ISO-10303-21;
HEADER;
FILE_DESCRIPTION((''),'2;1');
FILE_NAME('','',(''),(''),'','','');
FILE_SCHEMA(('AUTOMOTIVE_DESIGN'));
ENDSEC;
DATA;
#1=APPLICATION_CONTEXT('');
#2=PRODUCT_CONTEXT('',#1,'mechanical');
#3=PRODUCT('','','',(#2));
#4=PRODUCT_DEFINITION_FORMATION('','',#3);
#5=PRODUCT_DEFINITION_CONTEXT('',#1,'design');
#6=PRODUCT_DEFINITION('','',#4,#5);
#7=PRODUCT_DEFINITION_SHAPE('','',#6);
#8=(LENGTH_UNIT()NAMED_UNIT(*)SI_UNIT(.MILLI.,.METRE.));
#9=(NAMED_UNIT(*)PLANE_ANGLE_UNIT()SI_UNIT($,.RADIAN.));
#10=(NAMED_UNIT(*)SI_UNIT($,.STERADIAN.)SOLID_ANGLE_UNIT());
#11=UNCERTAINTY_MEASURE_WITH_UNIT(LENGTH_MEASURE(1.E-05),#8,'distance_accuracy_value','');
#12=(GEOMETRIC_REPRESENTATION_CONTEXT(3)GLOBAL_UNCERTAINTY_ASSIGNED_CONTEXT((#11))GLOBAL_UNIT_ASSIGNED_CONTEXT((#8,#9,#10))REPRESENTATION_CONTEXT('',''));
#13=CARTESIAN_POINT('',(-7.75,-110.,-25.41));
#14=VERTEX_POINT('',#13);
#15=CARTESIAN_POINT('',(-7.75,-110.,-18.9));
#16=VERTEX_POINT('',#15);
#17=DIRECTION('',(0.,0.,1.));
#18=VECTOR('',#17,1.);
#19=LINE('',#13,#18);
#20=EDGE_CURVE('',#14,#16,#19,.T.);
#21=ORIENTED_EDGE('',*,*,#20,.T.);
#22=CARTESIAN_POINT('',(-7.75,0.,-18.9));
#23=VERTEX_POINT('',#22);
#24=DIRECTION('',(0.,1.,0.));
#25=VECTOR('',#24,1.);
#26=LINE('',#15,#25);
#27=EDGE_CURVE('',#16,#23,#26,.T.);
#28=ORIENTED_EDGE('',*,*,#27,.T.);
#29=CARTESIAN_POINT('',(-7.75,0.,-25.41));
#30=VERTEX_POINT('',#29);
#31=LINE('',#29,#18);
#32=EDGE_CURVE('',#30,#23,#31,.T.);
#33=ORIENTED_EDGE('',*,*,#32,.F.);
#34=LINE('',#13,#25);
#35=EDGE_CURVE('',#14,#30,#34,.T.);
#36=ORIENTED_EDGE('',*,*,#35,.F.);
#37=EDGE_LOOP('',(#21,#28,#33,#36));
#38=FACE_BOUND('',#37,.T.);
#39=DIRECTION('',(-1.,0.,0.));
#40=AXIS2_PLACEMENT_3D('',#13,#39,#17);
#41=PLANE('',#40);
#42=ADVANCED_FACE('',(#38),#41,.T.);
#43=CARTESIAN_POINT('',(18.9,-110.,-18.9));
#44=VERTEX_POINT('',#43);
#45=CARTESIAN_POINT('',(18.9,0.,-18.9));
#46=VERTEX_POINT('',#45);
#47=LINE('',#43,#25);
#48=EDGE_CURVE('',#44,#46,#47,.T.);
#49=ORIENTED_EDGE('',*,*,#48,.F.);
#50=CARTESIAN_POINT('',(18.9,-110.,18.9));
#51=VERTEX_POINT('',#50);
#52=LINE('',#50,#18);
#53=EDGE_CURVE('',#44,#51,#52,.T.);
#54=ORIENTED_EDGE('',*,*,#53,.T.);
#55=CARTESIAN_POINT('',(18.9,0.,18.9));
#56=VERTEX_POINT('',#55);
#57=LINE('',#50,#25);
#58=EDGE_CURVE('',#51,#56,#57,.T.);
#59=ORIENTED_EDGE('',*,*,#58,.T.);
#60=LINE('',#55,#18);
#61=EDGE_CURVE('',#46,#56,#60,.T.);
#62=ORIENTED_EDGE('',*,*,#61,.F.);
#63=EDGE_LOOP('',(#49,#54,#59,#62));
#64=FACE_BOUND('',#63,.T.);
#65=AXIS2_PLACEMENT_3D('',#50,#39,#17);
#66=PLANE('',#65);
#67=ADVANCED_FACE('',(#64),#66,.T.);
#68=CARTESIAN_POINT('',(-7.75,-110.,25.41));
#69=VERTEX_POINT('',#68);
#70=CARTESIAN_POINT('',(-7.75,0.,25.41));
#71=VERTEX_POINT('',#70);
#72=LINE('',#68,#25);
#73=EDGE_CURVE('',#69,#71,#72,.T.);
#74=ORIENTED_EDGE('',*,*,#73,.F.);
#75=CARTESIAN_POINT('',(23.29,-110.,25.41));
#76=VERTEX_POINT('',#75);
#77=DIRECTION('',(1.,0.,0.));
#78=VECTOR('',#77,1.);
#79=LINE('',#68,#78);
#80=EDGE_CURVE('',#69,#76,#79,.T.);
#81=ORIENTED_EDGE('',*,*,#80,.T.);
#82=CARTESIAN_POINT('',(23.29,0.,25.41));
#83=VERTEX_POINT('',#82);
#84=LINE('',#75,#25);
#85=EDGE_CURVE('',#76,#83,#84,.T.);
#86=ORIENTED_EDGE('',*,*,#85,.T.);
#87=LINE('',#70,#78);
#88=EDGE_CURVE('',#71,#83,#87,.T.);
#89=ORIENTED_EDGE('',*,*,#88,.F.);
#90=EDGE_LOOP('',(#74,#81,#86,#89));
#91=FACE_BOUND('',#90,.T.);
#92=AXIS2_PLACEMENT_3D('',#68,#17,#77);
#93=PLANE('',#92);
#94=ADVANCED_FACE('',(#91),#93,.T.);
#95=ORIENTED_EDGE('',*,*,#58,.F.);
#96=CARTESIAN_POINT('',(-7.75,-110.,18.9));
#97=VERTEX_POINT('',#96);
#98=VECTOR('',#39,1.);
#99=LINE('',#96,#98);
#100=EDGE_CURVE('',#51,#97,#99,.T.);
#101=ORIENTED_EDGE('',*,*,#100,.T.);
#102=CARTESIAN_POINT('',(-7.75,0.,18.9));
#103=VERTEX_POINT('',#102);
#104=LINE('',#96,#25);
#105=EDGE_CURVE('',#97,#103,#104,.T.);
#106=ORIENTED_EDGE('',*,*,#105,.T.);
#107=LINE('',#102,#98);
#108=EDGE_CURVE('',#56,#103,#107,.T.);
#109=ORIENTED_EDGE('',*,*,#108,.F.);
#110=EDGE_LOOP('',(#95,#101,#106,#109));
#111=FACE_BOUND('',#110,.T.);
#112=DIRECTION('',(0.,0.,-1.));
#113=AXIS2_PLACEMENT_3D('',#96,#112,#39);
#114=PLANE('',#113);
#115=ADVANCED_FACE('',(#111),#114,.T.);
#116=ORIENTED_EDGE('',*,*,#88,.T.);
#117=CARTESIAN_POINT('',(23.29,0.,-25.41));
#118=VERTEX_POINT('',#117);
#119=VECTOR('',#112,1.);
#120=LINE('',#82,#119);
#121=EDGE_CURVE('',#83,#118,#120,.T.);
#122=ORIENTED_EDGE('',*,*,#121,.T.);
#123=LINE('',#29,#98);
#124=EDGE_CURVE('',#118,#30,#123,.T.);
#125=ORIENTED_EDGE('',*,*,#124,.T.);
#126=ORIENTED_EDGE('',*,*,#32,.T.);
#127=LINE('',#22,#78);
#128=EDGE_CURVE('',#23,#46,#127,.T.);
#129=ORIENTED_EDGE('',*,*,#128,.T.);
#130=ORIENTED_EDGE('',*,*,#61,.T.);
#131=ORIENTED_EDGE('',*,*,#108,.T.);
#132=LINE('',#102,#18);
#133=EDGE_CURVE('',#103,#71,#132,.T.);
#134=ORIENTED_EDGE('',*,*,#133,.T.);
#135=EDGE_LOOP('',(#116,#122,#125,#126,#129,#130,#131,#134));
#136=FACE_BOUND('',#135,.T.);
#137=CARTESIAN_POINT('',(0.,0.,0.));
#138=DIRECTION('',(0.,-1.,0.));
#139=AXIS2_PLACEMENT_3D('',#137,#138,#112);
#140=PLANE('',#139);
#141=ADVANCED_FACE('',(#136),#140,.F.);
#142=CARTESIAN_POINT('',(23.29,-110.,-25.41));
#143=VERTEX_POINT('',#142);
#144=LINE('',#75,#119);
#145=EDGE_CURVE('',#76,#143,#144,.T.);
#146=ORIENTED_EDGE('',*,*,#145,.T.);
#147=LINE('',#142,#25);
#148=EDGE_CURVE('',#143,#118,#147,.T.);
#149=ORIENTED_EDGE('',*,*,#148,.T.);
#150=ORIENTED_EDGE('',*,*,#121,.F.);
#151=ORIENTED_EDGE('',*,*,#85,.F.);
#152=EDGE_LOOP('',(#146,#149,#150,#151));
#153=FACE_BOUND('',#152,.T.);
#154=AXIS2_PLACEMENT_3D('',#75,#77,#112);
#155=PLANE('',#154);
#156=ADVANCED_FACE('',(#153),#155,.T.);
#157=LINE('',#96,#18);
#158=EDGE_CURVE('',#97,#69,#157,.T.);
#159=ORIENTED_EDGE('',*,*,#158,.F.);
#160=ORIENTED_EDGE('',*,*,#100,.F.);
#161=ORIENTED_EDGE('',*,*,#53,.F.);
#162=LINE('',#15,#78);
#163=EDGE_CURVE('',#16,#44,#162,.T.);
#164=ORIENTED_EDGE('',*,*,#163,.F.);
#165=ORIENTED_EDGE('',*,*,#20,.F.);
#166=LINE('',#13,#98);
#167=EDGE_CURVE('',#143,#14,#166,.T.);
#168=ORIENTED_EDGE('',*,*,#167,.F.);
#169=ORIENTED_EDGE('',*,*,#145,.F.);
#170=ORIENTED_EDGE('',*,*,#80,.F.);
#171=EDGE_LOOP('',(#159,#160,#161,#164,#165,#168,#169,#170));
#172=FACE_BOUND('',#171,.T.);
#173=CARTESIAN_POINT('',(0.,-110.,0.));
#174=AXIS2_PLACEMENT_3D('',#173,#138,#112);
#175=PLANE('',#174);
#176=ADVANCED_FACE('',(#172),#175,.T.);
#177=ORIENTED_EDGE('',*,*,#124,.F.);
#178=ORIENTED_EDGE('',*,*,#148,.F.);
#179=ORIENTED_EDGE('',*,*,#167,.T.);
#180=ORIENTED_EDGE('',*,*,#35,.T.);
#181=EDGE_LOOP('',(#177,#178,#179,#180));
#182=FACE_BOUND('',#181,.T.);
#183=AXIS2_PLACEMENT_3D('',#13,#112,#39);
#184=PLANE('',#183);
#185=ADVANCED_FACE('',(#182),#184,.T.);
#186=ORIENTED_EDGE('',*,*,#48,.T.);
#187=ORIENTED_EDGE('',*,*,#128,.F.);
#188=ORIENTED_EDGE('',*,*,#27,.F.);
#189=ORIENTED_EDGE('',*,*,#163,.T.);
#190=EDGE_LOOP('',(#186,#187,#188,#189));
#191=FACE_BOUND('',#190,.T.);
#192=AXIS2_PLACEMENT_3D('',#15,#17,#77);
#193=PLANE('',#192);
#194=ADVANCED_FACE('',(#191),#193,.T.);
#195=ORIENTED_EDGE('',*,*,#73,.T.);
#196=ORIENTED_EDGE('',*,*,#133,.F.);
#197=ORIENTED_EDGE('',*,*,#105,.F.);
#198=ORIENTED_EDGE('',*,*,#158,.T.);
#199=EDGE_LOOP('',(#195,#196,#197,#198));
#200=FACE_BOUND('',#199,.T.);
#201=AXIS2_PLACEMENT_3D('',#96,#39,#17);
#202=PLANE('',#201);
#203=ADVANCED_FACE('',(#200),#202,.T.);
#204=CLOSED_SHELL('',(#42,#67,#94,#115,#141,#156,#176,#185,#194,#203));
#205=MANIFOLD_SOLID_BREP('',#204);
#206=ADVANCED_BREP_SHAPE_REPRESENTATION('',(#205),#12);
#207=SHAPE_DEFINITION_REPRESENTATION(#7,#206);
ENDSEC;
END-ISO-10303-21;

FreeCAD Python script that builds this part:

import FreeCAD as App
import Part
import Sketcher
Q = App.Units.Quantity

doc = App.newDocument("Part")
params = doc.addObject("Spreadsheet::Sheet", "Params")
for row, (alias, value) in enumerate([
    ("sketch1_height", "37.8 mm"),
    ("sketch1_width", "31.04 mm"),
    ("sketch1_width2", "26.65 mm"),
    ("sketch1_height2", "6.51 mm"),
    ("pad1_length", "110 mm"),
], start=1):
    params.set(f"A{row}", alias)
    params.set(f"B{row}", "=" + value)
    params.setAlias(f"B{row}", alias)

body = doc.addObject("PartDesign::Body", "Body")

# Sketch on XZ plane
sketch1 = doc.addObject("Sketcher::SketchObject", "Sketch")
body.addObject(sketch1)
sketch1.AttachmentSupport = (doc.XZ_Plane, [""])
sketch1.MapMode = "FlatFace"
sketch1.addGeometry([
    Part.LineSegment(App.Vector(23, -25, 0), App.Vector(-8, -25, 0)),  # 0
    Part.LineSegment(App.Vector(-8, -25, 0), App.Vector(-8, -19, 0)),  # 1
    Part.LineSegment(App.Vector(-8, -19, 0), App.Vector(19, -19, 0)),  # 2
    Part.LineSegment(App.Vector(19, -19, 0), App.Vector(19, 19, 0)),  # 3
    Part.LineSegment(App.Vector(19, 19, 0), App.Vector(-8, 19, 0)),  # 4
    Part.LineSegment(App.Vector(-8, 19, 0), App.Vector(-8, 25, 0)),  # 5
    Part.LineSegment(App.Vector(-8, 25, 0), App.Vector(23, 25, 0)),  # 6
    Part.LineSegment(App.Vector(23, 25, 0), App.Vector(23, -25, 0)),  # 7
], False)
sketch1.addConstraint([
    Sketcher.Constraint("Coincident", 0, 2, 1, 1),
    Sketcher.Constraint("Coincident", 1, 2, 2, 1),
    Sketcher.Constraint("Coincident", 2, 2, 3, 1),
    Sketcher.Constraint("Coincident", 3, 2, 4, 1),
    Sketcher.Constraint("Coincident", 4, 2, 5, 1),
    Sketcher.Constraint("Coincident", 5, 2, 6, 1),
    Sketcher.Constraint("Coincident", 6, 2, 7, 1),
    Sketcher.Constraint("Coincident", 7, 2, 0, 1),
    Sketcher.Constraint("Horizontal", 0),
    Sketcher.Constraint("Vertical", 1),
    Sketcher.Constraint("Horizontal", 2),
    Sketcher.Constraint("Vertical", 3),
    Sketcher.Constraint("Horizontal", 4),
    Sketcher.Constraint("Vertical", 5),
    Sketcher.Constraint("Horizontal", 6),
    Sketcher.Constraint("Vertical", 7),
    Sketcher.Constraint("Symmetric", 1, 2, 4, 2, -1),
    Sketcher.Constraint("Equal", 1, 5),
    Sketcher.Constraint("DistanceY", 3, 1, 3, 2, Q("37.8 mm")),
    Sketcher.Constraint("DistanceX", 0, 2, 0, 1, Q("31.04 mm")),
    Sketcher.Constraint("DistanceX", 2, 1, 2, 2, Q("26.65 mm")),
    Sketcher.Constraint("DistanceY", 1, 1, 1, 2, Q("6.51 mm")),
    Sketcher.Constraint("DistanceX", -1, 1, 2, 2, Q("18.9 mm")),
])
sketch1.setExpression("Constraints[18]", "Params.sketch1_height")
sketch1.setExpression("Constraints[19]", "Params.sketch1_width")
sketch1.setExpression("Constraints[20]", "Params.sketch1_width2")
sketch1.setExpression("Constraints[21]", "Params.sketch1_height2")
pad1 = doc.addObject("PartDesign::Pad", "Pad")
body.addObject(pad1)
pad1.Profile = sketch1
pad1.setExpression("Length", "Params.pad1_length")

doc.recompute()
